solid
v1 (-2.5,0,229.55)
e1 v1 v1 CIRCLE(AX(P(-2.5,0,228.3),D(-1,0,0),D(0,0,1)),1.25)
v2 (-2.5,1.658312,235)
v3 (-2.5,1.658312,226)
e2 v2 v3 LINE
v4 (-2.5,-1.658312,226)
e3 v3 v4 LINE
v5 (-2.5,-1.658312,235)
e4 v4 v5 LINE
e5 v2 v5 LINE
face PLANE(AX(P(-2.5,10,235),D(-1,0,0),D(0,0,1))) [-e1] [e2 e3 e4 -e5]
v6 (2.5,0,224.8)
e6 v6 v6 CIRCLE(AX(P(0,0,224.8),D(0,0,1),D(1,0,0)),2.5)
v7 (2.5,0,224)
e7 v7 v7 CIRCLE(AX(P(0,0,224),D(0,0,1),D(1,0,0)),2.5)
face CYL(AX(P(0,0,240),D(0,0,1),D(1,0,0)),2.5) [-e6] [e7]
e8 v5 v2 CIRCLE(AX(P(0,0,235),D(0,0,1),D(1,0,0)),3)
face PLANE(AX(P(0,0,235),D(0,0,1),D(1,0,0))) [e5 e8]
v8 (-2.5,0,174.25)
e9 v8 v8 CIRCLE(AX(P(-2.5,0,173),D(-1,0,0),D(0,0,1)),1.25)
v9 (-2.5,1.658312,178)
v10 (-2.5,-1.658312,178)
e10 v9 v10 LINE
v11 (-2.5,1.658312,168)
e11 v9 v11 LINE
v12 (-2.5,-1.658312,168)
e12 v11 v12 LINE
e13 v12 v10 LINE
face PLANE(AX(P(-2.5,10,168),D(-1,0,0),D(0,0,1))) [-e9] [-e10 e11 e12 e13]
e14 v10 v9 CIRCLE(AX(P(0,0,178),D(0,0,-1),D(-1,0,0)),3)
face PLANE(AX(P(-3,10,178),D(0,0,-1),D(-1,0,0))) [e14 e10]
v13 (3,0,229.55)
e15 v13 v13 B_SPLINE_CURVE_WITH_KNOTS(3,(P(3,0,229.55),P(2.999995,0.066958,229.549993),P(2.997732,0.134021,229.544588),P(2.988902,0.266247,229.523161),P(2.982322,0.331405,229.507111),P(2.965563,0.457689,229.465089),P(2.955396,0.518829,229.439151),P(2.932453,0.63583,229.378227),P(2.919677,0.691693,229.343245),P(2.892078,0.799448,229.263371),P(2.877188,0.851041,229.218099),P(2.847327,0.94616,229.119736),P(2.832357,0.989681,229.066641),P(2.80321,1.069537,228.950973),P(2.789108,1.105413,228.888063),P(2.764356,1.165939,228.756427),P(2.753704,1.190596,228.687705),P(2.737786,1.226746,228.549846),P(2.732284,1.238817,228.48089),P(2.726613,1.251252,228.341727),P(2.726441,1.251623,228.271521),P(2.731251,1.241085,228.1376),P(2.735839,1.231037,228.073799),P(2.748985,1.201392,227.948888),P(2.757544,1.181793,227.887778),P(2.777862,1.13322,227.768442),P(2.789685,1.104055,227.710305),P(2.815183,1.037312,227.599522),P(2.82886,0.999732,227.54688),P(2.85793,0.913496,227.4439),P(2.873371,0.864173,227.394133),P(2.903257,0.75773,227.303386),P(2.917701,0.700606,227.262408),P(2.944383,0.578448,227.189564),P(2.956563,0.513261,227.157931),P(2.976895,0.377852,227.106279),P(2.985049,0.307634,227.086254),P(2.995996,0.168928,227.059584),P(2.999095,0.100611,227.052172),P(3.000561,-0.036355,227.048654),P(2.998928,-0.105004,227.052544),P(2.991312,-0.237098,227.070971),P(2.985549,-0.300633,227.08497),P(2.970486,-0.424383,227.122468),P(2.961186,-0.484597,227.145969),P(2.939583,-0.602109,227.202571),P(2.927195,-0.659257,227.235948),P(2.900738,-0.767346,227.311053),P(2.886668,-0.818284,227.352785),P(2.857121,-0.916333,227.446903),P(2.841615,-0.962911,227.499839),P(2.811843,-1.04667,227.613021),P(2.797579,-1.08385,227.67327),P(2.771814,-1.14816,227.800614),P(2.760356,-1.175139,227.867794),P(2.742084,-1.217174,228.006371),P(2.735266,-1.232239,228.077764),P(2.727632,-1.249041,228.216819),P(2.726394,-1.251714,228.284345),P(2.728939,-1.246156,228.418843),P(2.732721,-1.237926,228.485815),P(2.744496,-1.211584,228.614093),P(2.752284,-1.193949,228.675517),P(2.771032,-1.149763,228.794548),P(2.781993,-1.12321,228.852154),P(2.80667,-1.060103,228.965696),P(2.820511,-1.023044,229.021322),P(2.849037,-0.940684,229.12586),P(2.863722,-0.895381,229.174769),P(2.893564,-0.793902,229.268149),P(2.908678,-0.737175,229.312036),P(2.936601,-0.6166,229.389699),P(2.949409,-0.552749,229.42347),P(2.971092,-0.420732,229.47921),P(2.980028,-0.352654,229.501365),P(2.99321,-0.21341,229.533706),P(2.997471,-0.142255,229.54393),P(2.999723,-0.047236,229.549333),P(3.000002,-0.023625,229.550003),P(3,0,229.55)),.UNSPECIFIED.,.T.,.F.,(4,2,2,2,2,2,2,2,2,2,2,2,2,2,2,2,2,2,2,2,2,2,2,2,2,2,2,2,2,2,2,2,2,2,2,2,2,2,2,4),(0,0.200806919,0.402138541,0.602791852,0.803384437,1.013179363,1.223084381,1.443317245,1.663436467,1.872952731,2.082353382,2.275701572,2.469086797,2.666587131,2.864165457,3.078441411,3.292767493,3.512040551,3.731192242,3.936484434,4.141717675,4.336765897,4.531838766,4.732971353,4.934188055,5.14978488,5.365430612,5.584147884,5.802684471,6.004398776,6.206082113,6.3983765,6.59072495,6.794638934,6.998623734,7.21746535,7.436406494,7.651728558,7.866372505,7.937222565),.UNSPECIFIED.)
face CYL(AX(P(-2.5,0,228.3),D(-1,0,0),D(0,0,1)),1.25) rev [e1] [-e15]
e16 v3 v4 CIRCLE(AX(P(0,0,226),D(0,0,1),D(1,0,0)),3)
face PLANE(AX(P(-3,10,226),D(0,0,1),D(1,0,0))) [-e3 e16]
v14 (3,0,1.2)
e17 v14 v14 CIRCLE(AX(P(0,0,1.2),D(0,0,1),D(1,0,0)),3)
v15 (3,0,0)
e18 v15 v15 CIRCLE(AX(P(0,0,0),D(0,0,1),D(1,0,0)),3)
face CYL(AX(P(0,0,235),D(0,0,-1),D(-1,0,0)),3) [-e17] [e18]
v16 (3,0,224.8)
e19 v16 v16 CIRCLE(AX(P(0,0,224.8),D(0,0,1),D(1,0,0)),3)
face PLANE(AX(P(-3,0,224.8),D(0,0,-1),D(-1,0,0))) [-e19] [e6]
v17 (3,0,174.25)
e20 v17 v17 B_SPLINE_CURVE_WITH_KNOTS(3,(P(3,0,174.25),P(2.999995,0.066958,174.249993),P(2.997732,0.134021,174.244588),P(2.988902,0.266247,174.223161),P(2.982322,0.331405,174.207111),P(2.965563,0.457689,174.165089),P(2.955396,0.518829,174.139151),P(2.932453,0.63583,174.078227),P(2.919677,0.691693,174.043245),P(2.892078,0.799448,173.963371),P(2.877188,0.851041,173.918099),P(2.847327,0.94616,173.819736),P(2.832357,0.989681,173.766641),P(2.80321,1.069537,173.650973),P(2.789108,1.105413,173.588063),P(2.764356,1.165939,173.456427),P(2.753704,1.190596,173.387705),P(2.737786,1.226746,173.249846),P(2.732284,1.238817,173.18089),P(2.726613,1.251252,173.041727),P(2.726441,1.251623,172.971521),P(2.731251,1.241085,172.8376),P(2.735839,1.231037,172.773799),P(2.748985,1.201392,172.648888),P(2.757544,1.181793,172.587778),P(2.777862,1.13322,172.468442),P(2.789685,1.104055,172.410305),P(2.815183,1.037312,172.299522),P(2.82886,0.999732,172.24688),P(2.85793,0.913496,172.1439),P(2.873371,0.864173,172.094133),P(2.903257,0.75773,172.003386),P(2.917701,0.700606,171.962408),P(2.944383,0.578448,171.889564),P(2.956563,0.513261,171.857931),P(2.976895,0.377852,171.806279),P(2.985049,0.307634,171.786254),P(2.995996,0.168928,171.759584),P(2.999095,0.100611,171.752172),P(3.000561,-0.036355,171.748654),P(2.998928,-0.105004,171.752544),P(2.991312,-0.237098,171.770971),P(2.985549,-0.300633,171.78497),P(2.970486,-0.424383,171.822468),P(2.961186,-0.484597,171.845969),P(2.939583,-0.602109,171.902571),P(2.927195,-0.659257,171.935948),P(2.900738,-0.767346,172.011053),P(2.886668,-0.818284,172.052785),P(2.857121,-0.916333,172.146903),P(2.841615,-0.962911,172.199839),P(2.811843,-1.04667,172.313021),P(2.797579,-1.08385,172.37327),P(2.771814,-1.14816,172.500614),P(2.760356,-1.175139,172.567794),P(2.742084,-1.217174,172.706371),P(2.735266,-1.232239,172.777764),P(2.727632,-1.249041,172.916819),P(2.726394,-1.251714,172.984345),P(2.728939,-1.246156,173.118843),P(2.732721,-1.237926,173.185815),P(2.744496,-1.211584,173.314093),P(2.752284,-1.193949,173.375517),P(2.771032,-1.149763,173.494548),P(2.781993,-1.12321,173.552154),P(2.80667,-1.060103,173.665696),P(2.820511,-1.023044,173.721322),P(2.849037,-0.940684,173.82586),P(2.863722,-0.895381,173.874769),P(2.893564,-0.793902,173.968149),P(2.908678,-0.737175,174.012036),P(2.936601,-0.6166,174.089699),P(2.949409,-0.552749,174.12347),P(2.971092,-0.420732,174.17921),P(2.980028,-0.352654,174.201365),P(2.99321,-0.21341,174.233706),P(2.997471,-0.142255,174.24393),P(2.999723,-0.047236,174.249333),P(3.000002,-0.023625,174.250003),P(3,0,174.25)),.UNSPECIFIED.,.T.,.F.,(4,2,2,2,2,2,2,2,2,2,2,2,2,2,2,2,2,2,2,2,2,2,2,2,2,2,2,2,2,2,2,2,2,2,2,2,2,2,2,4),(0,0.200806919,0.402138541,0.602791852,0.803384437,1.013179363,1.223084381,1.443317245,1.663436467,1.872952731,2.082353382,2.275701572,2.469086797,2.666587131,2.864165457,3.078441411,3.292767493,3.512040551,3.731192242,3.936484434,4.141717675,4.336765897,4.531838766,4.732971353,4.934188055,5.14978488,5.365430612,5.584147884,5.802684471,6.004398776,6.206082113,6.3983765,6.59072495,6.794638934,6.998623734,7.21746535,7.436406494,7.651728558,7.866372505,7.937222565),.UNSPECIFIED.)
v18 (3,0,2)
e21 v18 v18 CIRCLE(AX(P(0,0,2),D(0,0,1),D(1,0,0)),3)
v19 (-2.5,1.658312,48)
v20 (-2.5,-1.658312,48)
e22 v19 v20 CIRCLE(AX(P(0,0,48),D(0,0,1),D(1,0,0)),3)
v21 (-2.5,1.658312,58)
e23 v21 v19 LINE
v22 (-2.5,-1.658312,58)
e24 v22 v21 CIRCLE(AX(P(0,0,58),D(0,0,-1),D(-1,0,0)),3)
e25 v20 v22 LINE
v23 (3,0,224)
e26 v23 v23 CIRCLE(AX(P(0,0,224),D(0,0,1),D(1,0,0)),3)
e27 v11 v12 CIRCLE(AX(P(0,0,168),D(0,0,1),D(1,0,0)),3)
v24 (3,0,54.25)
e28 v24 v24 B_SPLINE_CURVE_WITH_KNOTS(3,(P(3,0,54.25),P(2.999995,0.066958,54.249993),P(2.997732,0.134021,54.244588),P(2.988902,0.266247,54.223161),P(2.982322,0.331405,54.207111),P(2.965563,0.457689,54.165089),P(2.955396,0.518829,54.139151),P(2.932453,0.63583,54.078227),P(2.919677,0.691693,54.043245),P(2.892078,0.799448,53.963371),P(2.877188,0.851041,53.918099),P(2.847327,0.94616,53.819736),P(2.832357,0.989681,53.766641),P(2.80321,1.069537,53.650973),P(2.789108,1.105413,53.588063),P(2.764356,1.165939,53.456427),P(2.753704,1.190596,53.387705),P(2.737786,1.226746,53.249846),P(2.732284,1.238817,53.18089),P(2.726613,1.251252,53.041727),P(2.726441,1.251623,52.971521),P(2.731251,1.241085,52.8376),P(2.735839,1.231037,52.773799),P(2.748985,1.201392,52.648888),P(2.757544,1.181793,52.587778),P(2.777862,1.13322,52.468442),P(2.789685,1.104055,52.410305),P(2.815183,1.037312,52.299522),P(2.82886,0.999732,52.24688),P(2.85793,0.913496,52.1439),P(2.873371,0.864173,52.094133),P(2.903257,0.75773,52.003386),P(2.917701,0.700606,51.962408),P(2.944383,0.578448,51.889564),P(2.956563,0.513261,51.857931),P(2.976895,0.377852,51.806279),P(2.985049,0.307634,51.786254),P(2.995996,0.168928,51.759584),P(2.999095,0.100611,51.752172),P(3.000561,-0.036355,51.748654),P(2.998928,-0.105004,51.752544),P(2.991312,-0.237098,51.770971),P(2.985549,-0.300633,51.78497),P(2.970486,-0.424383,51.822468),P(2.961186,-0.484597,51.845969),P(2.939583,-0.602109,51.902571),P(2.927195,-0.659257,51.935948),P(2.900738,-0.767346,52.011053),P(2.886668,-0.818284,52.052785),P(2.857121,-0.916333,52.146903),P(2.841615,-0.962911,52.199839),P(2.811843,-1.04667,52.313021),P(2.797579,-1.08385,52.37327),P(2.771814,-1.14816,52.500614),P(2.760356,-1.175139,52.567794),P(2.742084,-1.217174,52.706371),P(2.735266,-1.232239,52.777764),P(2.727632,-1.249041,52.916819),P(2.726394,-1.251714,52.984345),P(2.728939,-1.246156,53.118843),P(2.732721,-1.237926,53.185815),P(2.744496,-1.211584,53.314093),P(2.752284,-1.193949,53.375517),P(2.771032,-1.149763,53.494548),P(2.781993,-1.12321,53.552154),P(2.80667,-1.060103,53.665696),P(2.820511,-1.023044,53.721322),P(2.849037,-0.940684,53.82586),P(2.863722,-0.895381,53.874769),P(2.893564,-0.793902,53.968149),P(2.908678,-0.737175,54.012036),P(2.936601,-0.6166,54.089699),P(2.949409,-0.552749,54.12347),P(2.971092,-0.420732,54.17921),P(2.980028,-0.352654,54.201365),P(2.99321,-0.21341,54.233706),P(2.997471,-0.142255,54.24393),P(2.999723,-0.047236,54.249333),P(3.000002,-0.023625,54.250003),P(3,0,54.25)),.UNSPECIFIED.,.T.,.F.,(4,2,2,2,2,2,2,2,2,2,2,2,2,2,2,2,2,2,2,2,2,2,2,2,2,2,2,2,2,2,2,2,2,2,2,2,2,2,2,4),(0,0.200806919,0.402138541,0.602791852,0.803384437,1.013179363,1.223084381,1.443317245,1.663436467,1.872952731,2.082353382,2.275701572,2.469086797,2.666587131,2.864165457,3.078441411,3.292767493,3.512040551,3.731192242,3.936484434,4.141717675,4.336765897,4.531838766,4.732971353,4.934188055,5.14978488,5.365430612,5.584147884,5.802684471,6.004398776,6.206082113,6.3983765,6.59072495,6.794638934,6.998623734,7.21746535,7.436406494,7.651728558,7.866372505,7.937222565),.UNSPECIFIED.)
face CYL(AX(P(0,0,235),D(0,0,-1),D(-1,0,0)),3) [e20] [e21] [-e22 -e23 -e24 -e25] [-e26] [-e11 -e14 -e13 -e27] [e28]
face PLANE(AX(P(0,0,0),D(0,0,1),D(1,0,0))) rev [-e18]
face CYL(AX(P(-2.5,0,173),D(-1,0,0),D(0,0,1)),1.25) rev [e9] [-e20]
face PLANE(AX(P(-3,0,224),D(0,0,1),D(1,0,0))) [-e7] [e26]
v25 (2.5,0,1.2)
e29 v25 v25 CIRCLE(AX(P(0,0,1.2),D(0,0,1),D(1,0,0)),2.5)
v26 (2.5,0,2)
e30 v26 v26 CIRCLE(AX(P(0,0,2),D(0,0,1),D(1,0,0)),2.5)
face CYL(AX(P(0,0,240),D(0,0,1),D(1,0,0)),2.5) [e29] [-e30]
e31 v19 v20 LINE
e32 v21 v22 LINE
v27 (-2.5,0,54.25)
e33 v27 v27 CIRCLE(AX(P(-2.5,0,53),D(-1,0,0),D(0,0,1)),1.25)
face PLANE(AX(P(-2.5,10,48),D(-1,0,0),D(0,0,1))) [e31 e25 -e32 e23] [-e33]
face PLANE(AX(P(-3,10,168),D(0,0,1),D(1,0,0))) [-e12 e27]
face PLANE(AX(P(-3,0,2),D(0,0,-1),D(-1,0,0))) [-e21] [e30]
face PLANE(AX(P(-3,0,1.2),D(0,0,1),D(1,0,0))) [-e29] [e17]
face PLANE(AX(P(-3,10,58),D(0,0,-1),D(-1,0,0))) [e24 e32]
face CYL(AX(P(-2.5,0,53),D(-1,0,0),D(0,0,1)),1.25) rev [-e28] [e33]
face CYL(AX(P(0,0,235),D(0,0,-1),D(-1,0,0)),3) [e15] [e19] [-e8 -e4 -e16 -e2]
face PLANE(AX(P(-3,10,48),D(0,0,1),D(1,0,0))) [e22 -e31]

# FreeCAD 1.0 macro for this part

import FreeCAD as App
import Part
import Sketcher
from FreeCAD import Vector


def add_polygon(sketch, points):
    """Adds a closed chain of lines whose ends are joined by coincident constraints."""
    first, n = sketch.GeometryCount, len(points)
    for a, b in zip(points, points[1:] + points[:1]):
        sketch.addGeometry(Part.LineSegment(App.Vector(*a, 0), App.Vector(*b, 0)), False)
    for i in range(n):
        sketch.addConstraint(Sketcher.Constraint("Coincident", first + i, 2, first + (i + 1) % n, 1))

doc = App.newDocument("Part")
body = doc.addObject("PartDesign::Body", "Body")

# Sketch on XY plane
sketch1 = body.newObject("Sketcher::SketchObject", "Sketch")
sketch1.AttachmentSupport = (doc.getObject("XY_Plane"), [""])
sketch1.MapMode = "FlatFace"
sketch1.addGeometry(Part.Circle(Vector(0, 0, 0), Vector(0, 0, 1), 3), False)
sketch1.addConstraint([
    Sketcher.Constraint("Coincident", 0, 3, -1, 1),
    Sketcher.Constraint("Diameter", 0, 6.0),
])
pad1 = body.newObject("PartDesign::Pad", "Pad")
pad1.Profile = sketch1
pad1.Length = 235

# Sketch on XZ plane
sketch2 = body.newObject("Sketcher::SketchObject", "Sketch001")
sketch2.AttachmentSupport = (doc.getObject("XZ_Plane"), [""])
sketch2.MapMode = "FlatFace"
add_polygon(sketch2, [(-3, 1.2), (-3, 2), (-2.5, 2), (-2.5, 1.2)])  # lines 0-3
add_polygon(sketch2, [(-3, 224), (-3, 224.8), (-2.5, 224.8), (-2.5, 224)])  # lines 4-7
sketch2.addConstraint([
    Sketcher.Constraint("Vertical", 0),
    Sketcher.Constraint("Horizontal", 1),
    Sketcher.Constraint("Vertical", 2),
    Sketcher.Constraint("Horizontal", 3),
    Sketcher.Constraint("Vertical", 4),
    Sketcher.Constraint("Horizontal", 5),
    Sketcher.Constraint("Vertical", 6),
    Sketcher.Constraint("Horizontal", 7),
    Sketcher.Constraint("Vertical", 3, 2, 4, 2),
    Sketcher.Constraint("Vertical", 2, 2, 5, 2),
    Sketcher.Constraint("Equal", 2, 4),
    Sketcher.Constraint("DistanceX", 1, 1, 1, 2, 0.5),
    Sketcher.Constraint("DistanceY", 0, 1, 0, 2, 0.8),
    Sketcher.Constraint("DistanceX", 0, 2, -1, 1, 3.0),
    Sketcher.Constraint("DistanceY", -1, 1, 0, 2, 2.0),
    Sketcher.Constraint("DistanceY", -1, 1, 6, 2, 224.0),
])
groove = body.newObject("PartDesign::Groove", "Groove")
groove.Profile = sketch2
groove.ReferenceAxis = (sketch2, ["V_Axis"])
groove.Angle = 360

# Sketch on XZ plane
sketch3 = body.newObject("Sketcher::SketchObject", "Sketch002")
sketch3.AttachmentSupport = (doc.getObject("XZ_Plane"), [""])
sketch3.MapMode = "FlatFace"
add_polygon(sketch3, [(-3, 48), (-3, 58), (-2.5, 58), (-2.5, 48)])  # lines 0-3
add_polygon(sketch3, [(-3, 168), (-3, 178), (-2.5, 178), (-2.5, 168)])  # lines 4-7
add_polygon(sketch3, [(-3, 226), (-3, 235), (-2.5, 235), (-2.5, 226)])  # lines 8-11
sketch3.addConstraint([
    Sketcher.Constraint("Vertical", 0),
    Sketcher.Constraint("Horizontal", 1),
    Sketcher.Constraint("Vertical", 2),
    Sketcher.Constraint("Horizontal", 3),
    Sketcher.Constraint("Vertical", 4),
    Sketcher.Constraint("Horizontal", 5),
    Sketcher.Constraint("Vertical", 6),
    Sketcher.Constraint("Horizontal", 7),
    Sketcher.Constraint("Vertical", 8),
    Sketcher.Constraint("Horizontal", 9),
    Sketcher.Constraint("Vertical", 10),
    Sketcher.Constraint("Horizontal", 11),
    Sketcher.Constraint("Vertical", 3, 2, 4, 2),
    Sketcher.Constraint("Vertical", 2, 2, 5, 2),
    Sketcher.Constraint("Vertical", 7, 2, 8, 2),
    Sketcher.Constraint("Vertical", 6, 2, 9, 2),
    Sketcher.Constraint("Equal", 2, 4),
    Sketcher.Constraint("DistanceY", 0, 1, 0, 2, 10.0),
    Sketcher.Constraint("DistanceY", 8, 1, 8, 2, 9.0),
    Sketcher.Constraint("DistanceX", 1, 1, 1, 2, 0.5),
    Sketcher.Constraint("DistanceX", 0, 2, -1, 1, 3.0),
    Sketcher.Constraint("DistanceY", -1, 1, 0, 2, 58.0),
    Sketcher.Constraint("DistanceY", -1, 1, 4, 2, 178.0),
    Sketcher.Constraint("DistanceY", -1, 1, 8, 2, 235.0),
])
pocket1 = body.newObject("PartDesign::Pocket", "Pocket")
pocket1.Profile = sketch3
pocket1.Type = "ThroughAll"
pocket1.Midplane = True

# Sketch on YZ plane
sketch4 = body.newObject("Sketcher::SketchObject", "Sketch003")
sketch4.AttachmentSupport = (doc.getObject("YZ_Plane"), [""])
sketch4.MapMode = "FlatFace"
sketch4.AttachmentOffset = App.Placement(Vector(0, 0, -2.5), App.Rotation())
sketch4.addGeometry([
    Part.Circle(Vector(0, 173, 0), Vector(0, 0, 1), 1.2),
    Part.Circle(Vector(0, 53, 0), Vector(0, 0, 1), 1.2),
], False)
sketch4.addConstraint([
    Sketcher.Constraint("Equal", 0, 1),
    Sketcher.Constraint("PointOnObject", 0, 3, -2),
    Sketcher.Constraint("PointOnObject", 1, 3, -2),
    Sketcher.Constraint("Diameter", 0, 2.5),
    Sketcher.Constraint("DistanceY", -1, 1, 0, 3, 173.0),
    Sketcher.Constraint("DistanceY", -1, 1, 1, 3, 53.0),
])
doc.recompute()
hole = body.newObject("PartDesign::Hole", "Hole")
hole.Profile = sketch4
hole.ThreadType = "None"
hole.Diameter = 2.5
hole.DepthType = "ThroughAll"
hole.Reversed = True

# Sketch on YZ plane
sketch5 = body.newObject("Sketcher::SketchObject", "Sketch004")
sketch5.AttachmentSupport = (doc.getObject("YZ_Plane"), [""])
sketch5.MapMode = "FlatFace"
sketch5.AttachmentOffset = App.Placement(Vector(0, 0, -2.5), App.Rotation())
sketch5.addGeometry(Part.Circle(Vector(0, 228.3, 0), Vector(0, 0, 1), 1.2), False)
sketch5.addConstraint([
    Sketcher.Constraint("PointOnObject", 0, 3, -2),
    Sketcher.Constraint("Diameter", 0, 2.5),
    Sketcher.Constraint("DistanceY", -1, 1, 0, 3, 228.3),
])
doc.recompute()
hole2 = body.newObject("PartDesign::Hole", "Hole001")
hole2.Profile = sketch5
hole2.ThreadType = "None"
hole2.Diameter = 2.5
hole2.DepthType = "ThroughAll"
hole2.Reversed = True

doc.recompute()
